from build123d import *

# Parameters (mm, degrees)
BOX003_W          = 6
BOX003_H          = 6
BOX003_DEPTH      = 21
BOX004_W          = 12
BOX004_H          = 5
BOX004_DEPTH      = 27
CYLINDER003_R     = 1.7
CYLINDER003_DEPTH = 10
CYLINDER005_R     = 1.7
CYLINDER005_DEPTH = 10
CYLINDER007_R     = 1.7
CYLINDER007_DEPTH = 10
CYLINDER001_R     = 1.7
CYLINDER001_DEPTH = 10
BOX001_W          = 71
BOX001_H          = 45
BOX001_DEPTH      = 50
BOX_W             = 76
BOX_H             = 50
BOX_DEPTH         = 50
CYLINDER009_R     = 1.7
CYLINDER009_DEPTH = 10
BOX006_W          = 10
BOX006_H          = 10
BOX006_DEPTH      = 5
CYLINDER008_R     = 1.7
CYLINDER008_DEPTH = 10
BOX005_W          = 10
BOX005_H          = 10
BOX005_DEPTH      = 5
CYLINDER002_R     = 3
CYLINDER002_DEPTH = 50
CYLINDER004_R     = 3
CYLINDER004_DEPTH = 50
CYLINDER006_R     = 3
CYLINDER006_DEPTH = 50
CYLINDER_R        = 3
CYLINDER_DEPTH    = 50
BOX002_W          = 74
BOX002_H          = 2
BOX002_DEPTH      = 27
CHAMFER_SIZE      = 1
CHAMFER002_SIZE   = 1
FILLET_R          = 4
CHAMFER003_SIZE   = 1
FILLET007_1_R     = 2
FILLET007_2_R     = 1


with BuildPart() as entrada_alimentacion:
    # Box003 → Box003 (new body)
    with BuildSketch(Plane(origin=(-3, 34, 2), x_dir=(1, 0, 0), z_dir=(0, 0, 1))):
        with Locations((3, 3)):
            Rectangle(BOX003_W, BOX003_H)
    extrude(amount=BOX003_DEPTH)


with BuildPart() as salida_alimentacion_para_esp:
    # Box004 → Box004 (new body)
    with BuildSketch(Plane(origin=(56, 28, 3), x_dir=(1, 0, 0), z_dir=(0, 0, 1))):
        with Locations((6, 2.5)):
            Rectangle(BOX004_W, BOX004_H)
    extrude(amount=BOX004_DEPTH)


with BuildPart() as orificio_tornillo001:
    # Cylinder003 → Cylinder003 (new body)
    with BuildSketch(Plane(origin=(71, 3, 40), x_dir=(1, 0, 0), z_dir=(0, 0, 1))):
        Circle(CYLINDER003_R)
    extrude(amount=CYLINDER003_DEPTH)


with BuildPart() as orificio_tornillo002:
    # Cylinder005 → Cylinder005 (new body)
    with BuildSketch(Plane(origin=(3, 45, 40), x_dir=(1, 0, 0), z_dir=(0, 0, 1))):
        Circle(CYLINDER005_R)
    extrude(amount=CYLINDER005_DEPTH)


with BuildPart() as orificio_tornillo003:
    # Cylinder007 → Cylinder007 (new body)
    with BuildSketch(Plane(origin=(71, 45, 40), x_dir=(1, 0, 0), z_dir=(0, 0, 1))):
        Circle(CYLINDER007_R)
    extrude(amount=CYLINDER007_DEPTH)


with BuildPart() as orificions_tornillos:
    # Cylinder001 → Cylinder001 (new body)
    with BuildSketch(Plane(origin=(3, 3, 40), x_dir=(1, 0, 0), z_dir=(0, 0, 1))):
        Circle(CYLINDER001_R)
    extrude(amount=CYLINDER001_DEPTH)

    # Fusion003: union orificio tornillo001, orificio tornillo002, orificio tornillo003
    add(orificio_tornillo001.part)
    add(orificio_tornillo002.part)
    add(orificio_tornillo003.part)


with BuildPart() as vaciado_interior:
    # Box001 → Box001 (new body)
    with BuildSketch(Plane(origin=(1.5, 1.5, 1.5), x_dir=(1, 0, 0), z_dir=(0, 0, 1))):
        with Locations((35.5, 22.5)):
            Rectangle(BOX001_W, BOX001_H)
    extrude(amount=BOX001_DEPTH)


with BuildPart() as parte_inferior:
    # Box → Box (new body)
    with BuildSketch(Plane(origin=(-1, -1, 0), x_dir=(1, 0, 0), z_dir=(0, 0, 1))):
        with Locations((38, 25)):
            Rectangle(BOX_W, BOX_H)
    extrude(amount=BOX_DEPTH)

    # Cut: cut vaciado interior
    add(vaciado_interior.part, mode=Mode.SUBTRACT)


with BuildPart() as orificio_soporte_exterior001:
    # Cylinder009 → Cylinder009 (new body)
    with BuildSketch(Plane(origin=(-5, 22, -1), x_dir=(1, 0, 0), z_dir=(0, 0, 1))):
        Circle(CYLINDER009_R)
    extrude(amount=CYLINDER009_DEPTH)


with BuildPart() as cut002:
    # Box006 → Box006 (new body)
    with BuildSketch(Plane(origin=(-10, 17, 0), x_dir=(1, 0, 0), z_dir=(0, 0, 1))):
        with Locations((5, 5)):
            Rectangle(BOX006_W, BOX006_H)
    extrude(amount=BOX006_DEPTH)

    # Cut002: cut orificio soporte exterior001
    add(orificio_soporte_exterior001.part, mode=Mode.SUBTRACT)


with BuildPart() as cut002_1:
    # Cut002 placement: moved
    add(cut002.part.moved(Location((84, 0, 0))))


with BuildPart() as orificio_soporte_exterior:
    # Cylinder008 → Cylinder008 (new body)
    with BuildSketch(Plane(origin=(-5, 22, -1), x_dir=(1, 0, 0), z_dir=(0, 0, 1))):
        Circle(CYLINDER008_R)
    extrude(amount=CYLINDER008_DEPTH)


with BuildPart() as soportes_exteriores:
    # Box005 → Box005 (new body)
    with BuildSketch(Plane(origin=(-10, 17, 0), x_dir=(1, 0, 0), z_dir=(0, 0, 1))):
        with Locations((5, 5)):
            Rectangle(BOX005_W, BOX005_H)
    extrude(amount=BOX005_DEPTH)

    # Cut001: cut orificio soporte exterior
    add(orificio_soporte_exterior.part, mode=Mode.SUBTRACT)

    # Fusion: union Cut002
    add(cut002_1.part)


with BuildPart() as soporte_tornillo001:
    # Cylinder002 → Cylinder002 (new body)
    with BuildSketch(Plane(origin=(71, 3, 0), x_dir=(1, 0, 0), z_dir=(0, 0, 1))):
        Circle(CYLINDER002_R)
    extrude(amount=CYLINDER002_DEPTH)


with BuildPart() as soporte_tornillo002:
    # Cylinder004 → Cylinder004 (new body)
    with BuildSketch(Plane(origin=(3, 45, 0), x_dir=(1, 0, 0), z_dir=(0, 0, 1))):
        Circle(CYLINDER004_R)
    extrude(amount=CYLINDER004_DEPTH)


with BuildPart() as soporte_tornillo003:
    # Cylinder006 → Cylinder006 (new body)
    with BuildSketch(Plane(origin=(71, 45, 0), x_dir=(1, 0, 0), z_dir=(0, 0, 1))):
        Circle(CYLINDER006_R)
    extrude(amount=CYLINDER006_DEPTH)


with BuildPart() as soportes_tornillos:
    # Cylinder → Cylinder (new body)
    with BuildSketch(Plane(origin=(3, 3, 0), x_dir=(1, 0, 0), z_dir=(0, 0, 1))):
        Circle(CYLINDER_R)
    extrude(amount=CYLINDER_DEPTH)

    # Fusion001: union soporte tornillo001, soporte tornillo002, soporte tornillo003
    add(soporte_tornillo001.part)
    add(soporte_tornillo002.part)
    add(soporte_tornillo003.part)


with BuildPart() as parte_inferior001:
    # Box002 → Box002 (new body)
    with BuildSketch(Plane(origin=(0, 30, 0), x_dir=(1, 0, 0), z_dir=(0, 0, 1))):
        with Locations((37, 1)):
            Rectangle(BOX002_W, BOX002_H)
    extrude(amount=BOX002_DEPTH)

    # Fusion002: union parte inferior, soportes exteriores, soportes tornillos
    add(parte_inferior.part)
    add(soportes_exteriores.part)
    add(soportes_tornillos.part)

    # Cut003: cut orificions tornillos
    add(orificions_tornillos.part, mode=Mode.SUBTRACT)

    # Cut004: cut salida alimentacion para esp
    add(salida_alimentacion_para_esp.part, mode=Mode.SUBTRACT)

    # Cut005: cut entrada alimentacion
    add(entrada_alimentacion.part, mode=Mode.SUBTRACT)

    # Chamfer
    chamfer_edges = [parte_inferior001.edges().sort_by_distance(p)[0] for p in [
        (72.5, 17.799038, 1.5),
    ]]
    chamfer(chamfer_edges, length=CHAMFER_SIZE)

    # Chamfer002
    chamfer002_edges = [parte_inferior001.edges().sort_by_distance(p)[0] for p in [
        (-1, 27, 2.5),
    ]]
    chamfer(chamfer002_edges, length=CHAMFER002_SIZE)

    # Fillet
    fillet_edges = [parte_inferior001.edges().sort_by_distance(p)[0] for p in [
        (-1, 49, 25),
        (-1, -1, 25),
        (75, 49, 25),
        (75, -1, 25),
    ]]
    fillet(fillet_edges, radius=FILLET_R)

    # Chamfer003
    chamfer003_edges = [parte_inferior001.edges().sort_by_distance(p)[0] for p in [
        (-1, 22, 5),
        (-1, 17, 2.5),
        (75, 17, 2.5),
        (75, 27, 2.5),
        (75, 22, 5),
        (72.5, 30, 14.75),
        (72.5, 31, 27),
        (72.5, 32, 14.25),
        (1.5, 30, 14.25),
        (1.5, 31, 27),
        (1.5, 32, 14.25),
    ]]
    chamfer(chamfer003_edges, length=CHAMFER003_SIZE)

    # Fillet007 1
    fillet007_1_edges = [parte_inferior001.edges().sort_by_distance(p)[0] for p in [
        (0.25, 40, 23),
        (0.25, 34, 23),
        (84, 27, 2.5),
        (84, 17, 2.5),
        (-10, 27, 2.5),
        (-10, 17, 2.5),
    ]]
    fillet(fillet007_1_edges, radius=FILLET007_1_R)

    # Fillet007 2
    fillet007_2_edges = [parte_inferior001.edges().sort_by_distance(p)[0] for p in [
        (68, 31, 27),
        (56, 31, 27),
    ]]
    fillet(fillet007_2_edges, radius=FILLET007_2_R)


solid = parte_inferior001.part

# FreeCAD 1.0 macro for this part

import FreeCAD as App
import Part
import Sketcher
from FreeCAD import Vector
Q = App.Units.Quantity


def edges_at(feature, points):
    """Names of the edges that pass closest to the given points."""
    edges = feature.Shape.Edges
    near = lambda p: min(range(len(edges)), key=lambda i: edges[i].distToShape(Part.Vertex(*p))[0])
    return sorted({f"Edge{near(p) + 1}" for p in points})

doc = App.newDocument("Part")
params = doc.addObject("Spreadsheet::Sheet", "Params")
for row, (alias, value) in enumerate([
    ("sketch1_width", "6 mm"),
    ("pad1_length", "21 mm"),
    ("sketch2_width", "12 mm"),
    ("sketch2_height", "5 mm"),
    ("pad2_length", "27 mm"),
    ("sketch3_diameter", "3.4 mm"),
    ("pad3_length", "10 mm"),
    ("sketch4_diameter", "3.4 mm"),
    ("pad4_length", "10 mm"),
    ("sketch5_diameter", "3.4 mm"),
    ("pad5_length", "10 mm"),
    ("sketch6_diameter", "3.4 mm"),
    ("pad6_length", "10 mm"),
    ("sketch7_width", "71 mm"),
    ("sketch7_height", "45 mm"),
    ("pad7_length", "50 mm"),
    ("sketch8_width", "76 mm"),
    ("sketch8_height", "50 mm"),
    ("pad8_length", "50 mm"),
    ("sketch9_diameter", "3.4 mm"),
    ("pad9_length", "10 mm"),
    ("sketch10_width", "10 mm"),
    ("pad10_length", "5 mm"),
    ("sketch11_diameter", "3.4 mm"),
    ("pad11_length", "10 mm"),
    ("sketch12_width", "10 mm"),
    ("pad12_length", "5 mm"),
    ("sketch13_diameter", "6 mm"),
    ("pad13_length", "50 mm"),
    ("sketch14_diameter", "6 mm"),
    ("pad14_length", "50 mm"),
    ("sketch15_diameter", "6 mm"),
    ("pad15_length", "50 mm"),
    ("sketch16_diameter", "6 mm"),
    ("pad16_length", "50 mm"),
    ("sketch17_width", "74 mm"),
    ("sketch17_height", "2 mm"),
    ("pad17_length", "27 mm"),
    ("chamfer_size", "1 mm"),
    ("chamfer2_size", "1 mm"),
    ("fillet_radius", "4 mm"),
    ("chamfer3_size", "1 mm"),
    ("fillet2_radius", "2 mm"),
    ("fillet3_radius", "1 mm"),
], start=1):
    params.set(f"A{row}", alias)
    params.set(f"B{row}", "=" + value)
    params.setAlias(f"B{row}", alias)

body = doc.addObject("PartDesign::Body", "Body")

# Sketch on XY plane
sketch1 = body.newObject("Sketcher::SketchObject", "Sketch")
sketch1.AttachmentSupport = (doc.getObject("XY_Plane"), [""])
sketch1.MapMode = "FlatFace"
sketch1.AttachmentOffset = App.Placement(Vector(0, 0, 2), App.Rotation())
sketch1.addGeometry(Part.LineSegment(Vector(-3, 40, 0), Vector(-3, 34, 0)), False)
sketch1.addGeometry(Part.LineSegment(Vector(-3, 34, 0), Vector(3, 34, 0)), False)
sketch1.addGeometry(Part.LineSegment(Vector(3, 34, 0), Vector(3, 40, 0)), False)
sketch1.addGeometry(Part.LineSegment(Vector(3, 40, 0), Vector(-3, 40, 0)), False)
sketch1.addConstraint(Sketcher.Constraint("Coincident", 0, 2, 1, 1))
sketch1.addConstraint(Sketcher.Constraint("Coincident", 1, 2, 2, 1))
sketch1.addConstraint(Sketcher.Constraint("Coincident", 2, 2, 3, 1))
sketch1.addConstraint(Sketcher.Constraint("Coincident", 3, 2, 0, 1))
sketch1.addConstraint(Sketcher.Constraint("Vertical", 0))
sketch1.addConstraint(Sketcher.Constraint("Horizontal", 1))
sketch1.addConstraint(Sketcher.Constraint("Vertical", 2))
sketch1.addConstraint(Sketcher.Constraint("Horizontal", 3))
sketch1.addConstraint(Sketcher.Constraint("Equal", 3, 0))
sketch1.addConstraint(Sketcher.Constraint("DistanceX", 1, 1, 1, 2, Q("6 mm")))
sketch1.addConstraint(Sketcher.Constraint("DistanceX", 0, 2, -1, 1, Q("3 mm")))
sketch1.addConstraint(Sketcher.Constraint("DistanceY", -1, 1, 0, 2, Q("34 mm")))
sketch1.setExpression("Constraints[9]", "Params.sketch1_width")
pad1 = body.newObject("PartDesign::Pad", "Pad")
pad1.Profile = sketch1
pad1.setExpression("Length", "Params.pad1_length")
body2 = doc.addObject("PartDesign::Body", "Body001")

# Sketch on XY plane
sketch2 = body2.newObject("Sketcher::SketchObject", "Sketch001")
sketch2.AttachmentSupport = (doc.getObject("XY_Plane001"), [""])
sketch2.MapMode = "FlatFace"
sketch2.AttachmentOffset = App.Placement(Vector(0, 0, 3), App.Rotation())
sketch2.addGeometry(Part.LineSegment(Vector(56, 33, 0), Vector(56, 28, 0)), False)
sketch2.addGeometry(Part.LineSegment(Vector(56, 28, 0), Vector(68, 28, 0)), False)
sketch2.addGeometry(Part.LineSegment(Vector(68, 28, 0), Vector(68, 33, 0)), False)
sketch2.addGeometry(Part.LineSegment(Vector(68, 33, 0), Vector(56, 33, 0)), False)
sketch2.addConstraint(Sketcher.Constraint("Coincident", 0, 2, 1, 1))
sketch2.addConstraint(Sketcher.Constraint("Coincident", 1, 2, 2, 1))
sketch2.addConstraint(Sketcher.Constraint("Coincident", 2, 2, 3, 1))
sketch2.addConstraint(Sketcher.Constraint("Coincident", 3, 2, 0, 1))
sketch2.addConstraint(Sketcher.Constraint("Vertical", 0))
sketch2.addConstraint(Sketcher.Constraint("Horizontal", 1))
sketch2.addConstraint(Sketcher.Constraint("Vertical", 2))
sketch2.addConstraint(Sketcher.Constraint("Horizontal", 3))
sketch2.addConstraint(Sketcher.Constraint("DistanceX", 1, 1, 1, 2, Q("12 mm")))
sketch2.addConstraint(Sketcher.Constraint("DistanceY", 0, 2, 0, 1, Q("5 mm")))
sketch2.addConstraint(Sketcher.Constraint("DistanceX", -1, 1, 0, 2, Q("56 mm")))
sketch2.addConstraint(Sketcher.Constraint("DistanceY", -1, 1, 0, 2, Q("28 mm")))
sketch2.setExpression("Constraints[8]", "Params.sketch2_width")
sketch2.setExpression("Constraints[9]", "Params.sketch2_height")
pad2 = body2.newObject("PartDesign::Pad", "Pad001")
pad2.Profile = sketch2
pad2.setExpression("Length", "Params.pad2_length")
body3 = doc.addObject("PartDesign::Body", "Body002")

# Sketch on XY plane
sketch3 = body3.newObject("Sketcher::SketchObject", "Sketch002")
sketch3.AttachmentSupport = (doc.getObject("XY_Plane002"), [""])
sketch3.MapMode = "FlatFace"
sketch3.AttachmentOffset = App.Placement(Vector(0, 0, 40), App.Rotation())
sketch3.addGeometry(Part.Circle(Vector(71, 3, 0), Vector(0, 0, 1), 1.7), False)
sketch3.addConstraint(Sketcher.Constraint("Diameter", 0, Q("3.4 mm")))
sketch3.addConstraint(Sketcher.Constraint("DistanceX", -1, 1, 0, 3, Q("71 mm")))
sketch3.addConstraint(Sketcher.Constraint("DistanceY", -1, 1, 0, 3, Q("3 mm")))
sketch3.setExpression("Constraints[0]", "Params.sketch3_diameter")
pad3 = body3.newObject("PartDesign::Pad", "Pad002")
pad3.Profile = sketch3
pad3.setExpression("Length", "Params.pad3_length")
body4 = doc.addObject("PartDesign::Body", "Body003")

# Sketch on XY plane
sketch4 = body4.newObject("Sketcher::SketchObject", "Sketch003")
sketch4.AttachmentSupport = (doc.getObject("XY_Plane003"), [""])
sketch4.MapMode = "FlatFace"
sketch4.AttachmentOffset = App.Placement(Vector(0, 0, 40), App.Rotation())
sketch4.addGeometry(Part.Circle(Vector(3, 45, 0), Vector(0, 0, 1), 1.7), False)
sketch4.addConstraint(Sketcher.Constraint("Diameter", 0, Q("3.4 mm")))
sketch4.addConstraint(Sketcher.Constraint("DistanceX", -1, 1, 0, 3, Q("3 mm")))
sketch4.addConstraint(Sketcher.Constraint("DistanceY", -1, 1, 0, 3, Q("45 mm")))
sketch4.setExpression("Constraints[0]", "Params.sketch4_diameter")
pad4 = body4.newObject("PartDesign::Pad", "Pad003")
pad4.Profile = sketch4
pad4.setExpression("Length", "Params.pad4_length")
body5 = doc.addObject("PartDesign::Body", "Body004")

# Sketch on XY plane
sketch5 = body5.newObject("Sketcher::SketchObject", "Sketch004")
sketch5.AttachmentSupport = (doc.getObject("XY_Plane004"), [""])
sketch5.MapMode = "FlatFace"
sketch5.AttachmentOffset = App.Placement(Vector(0, 0, 40), App.Rotation())
sketch5.addGeometry(Part.Circle(Vector(71, 45, 0), Vector(0, 0, 1), 1.7), False)
sketch5.addConstraint(Sketcher.Constraint("Diameter", 0, Q("3.4 mm")))
sketch5.addConstraint(Sketcher.Constraint("DistanceX", -1, 1, 0, 3, Q("71 mm")))
sketch5.addConstraint(Sketcher.Constraint("DistanceY", -1, 1, 0, 3, Q("45 mm")))
sketch5.setExpression("Constraints[0]", "Params.sketch5_diameter")
pad5 = body5.newObject("PartDesign::Pad", "Pad004")
pad5.Profile = sketch5
pad5.setExpression("Length", "Params.pad5_length")
body6 = doc.addObject("PartDesign::Body", "Body005")
body6.AllowCompound = True

# Sketch on XY plane
sketch6 = body6.newObject("Sketcher::SketchObject", "Sketch005")
sketch6.AttachmentSupport = (doc.getObject("XY_Plane005"), [""])
sketch6.MapMode = "FlatFace"
sketch6.AttachmentOffset = App.Placement(Vector(0, 0, 40), App.Rotation())
sketch6.addGeometry(Part.Circle(Vector(3, 3, 0), Vector(0, 0, 1), 1.7), False)
sketch6.addConstraint(Sketcher.Constraint("Diameter", 0, Q("3.4 mm")))
sketch6.addConstraint(Sketcher.Constraint("DistanceX", -1, 1, 0, 3, Q("3 mm")))
sketch6.addConstraint(Sketcher.Constraint("DistanceY", -1, 1, 0, 3, Q("3 mm")))
sketch6.setExpression("Constraints[0]", "Params.sketch6_diameter")
pad6 = body6.newObject("PartDesign::Pad", "Pad005")
pad6.Profile = sketch6
pad6.setExpression("Length", "Params.pad6_length")
doc.recompute()

boolean = body6.newObject("PartDesign::Boolean", "Boolean")
boolean.Type = "Fuse"
boolean.addObjects([body3])
doc.recompute()

boolean2 = body6.newObject("PartDesign::Boolean", "Boolean001")
boolean2.Type = "Fuse"
boolean2.addObjects([body4])
doc.recompute()

boolean3 = body6.newObject("PartDesign::Boolean", "Boolean002")
boolean3.Type = "Fuse"
boolean3.addObjects([body5])
body7 = doc.addObject("PartDesign::Body", "Body006")

# Sketch on XY plane
sketch7 = body7.newObject("Sketcher::SketchObject", "Sketch006")
sketch7.AttachmentSupport = (doc.getObject("XY_Plane006"), [""])
sketch7.MapMode = "FlatFace"
sketch7.AttachmentOffset = App.Placement(Vector(0, 0, 1.5), App.Rotation())
sketch7.addGeometry(Part.LineSegment(Vector(2, 46, 0), Vector(2, 2, 0)), False)
sketch7.addGeometry(Part.LineSegment(Vector(2, 2, 0), Vector(72, 2, 0)), False)
sketch7.addGeometry(Part.LineSegment(Vector(72, 2, 0), Vector(72, 46, 0)), False)
sketch7.addGeometry(Part.LineSegment(Vector(72, 46, 0), Vector(2, 46, 0)), False)
sketch7.addConstraint(Sketcher.Constraint("Coincident", 0, 2, 1, 1))
sketch7.addConstraint(Sketcher.Constraint("Coincident", 1, 2, 2, 1))
sketch7.addConstraint(Sketcher.Constraint("Coincident", 2, 2, 3, 1))
sketch7.addConstraint(Sketcher.Constraint("Coincident", 3, 2, 0, 1))
sketch7.addConstraint(Sketcher.Constraint("Vertical", 0))
sketch7.addConstraint(Sketcher.Constraint("Horizontal", 1))
sketch7.addConstraint(Sketcher.Constraint("Vertical", 2))
sketch7.addConstraint(Sketcher.Constraint("Horizontal", 3))
sketch7.addConstraint(Sketcher.Constraint("DistanceX", 1, 1, 1, 2, Q("71 mm")))
sketch7.addConstraint(Sketcher.Constraint("DistanceY", 0, 2, 0, 1, Q("45 mm")))
sketch7.addConstraint(Sketcher.Constraint("DistanceX", -1, 1, 0, 2, Q("1.5 mm")))
sketch7.addConstraint(Sketcher.Constraint("DistanceY", -1, 1, 0, 2, Q("1.5 mm")))
sketch7.setExpression("Constraints[8]", "Params.sketch7_width")
sketch7.setExpression("Constraints[9]", "Params.sketch7_height")
pad7 = body7.newObject("PartDesign::Pad", "Pad006")
pad7.Profile = sketch7
pad7.setExpression("Length", "Params.pad7_length")
body8 = doc.addObject("PartDesign::Body", "Body007")

# Sketch on XY plane
sketch8 = body8.newObject("Sketcher::SketchObject", "Sketch007")
sketch8.AttachmentSupport = (doc.getObject("XY_Plane007"), [""])
sketch8.MapMode = "FlatFace"
sketch8.addGeometry(Part.LineSegment(Vector(-1, 49, 0), Vector(-1, -1, 0)), False)
sketch8.addGeometry(Part.LineSegment(Vector(-1, -1, 0), Vector(75, -1, 0)), False)
sketch8.addGeometry(Part.LineSegment(Vector(75, -1, 0), Vector(75, 49, 0)), False)
sketch8.addGeometry(Part.LineSegment(Vector(75, 49, 0), Vector(-1, 49, 0)), False)
sketch8.addConstraint(Sketcher.Constraint("Coincident", 0, 2, 1, 1))
sketch8.addConstraint(Sketcher.Constraint("Coincident", 1, 2, 2, 1))
sketch8.addConstraint(Sketcher.Constraint("Coincident", 2, 2, 3, 1))
sketch8.addConstraint(Sketcher.Constraint("Coincident", 3, 2, 0, 1))
sketch8.addConstraint(Sketcher.Constraint("Vertical", 0))
sketch8.addConstraint(Sketcher.Constraint("Horizontal", 1))
sketch8.addConstraint(Sketcher.Constraint("Vertical", 2))
sketch8.addConstraint(Sketcher.Constraint("Horizontal", 3))
sketch8.addConstraint(Sketcher.Constraint("DistanceX", 1, 1, 1, 2, Q("76 mm")))
sketch8.addConstraint(Sketcher.Constraint("DistanceY", 0, 2, 0, 1, Q("50 mm")))
sketch8.addConstraint(Sketcher.Constraint("DistanceX", 0, 2, -1, 1, Q("1 mm")))
sketch8.addConstraint(Sketcher.Constraint("DistanceY", 0, 2, -1, 1, Q("1 mm")))
sketch8.setExpression("Constraints[8]", "Params.sketch8_width")
sketch8.setExpression("Constraints[9]", "Params.sketch8_height")
pad8 = body8.newObject("PartDesign::Pad", "Pad007")
pad8.Profile = sketch8
pad8.setExpression("Length", "Params.pad8_length")
doc.recompute()

boolean4 = body8.newObject("PartDesign::Boolean", "Boolean003")
boolean4.Type = "Cut"
boolean4.addObjects([body7])
body9 = doc.addObject("PartDesign::Body", "Body008")

# Sketch on XY plane
sketch9 = body9.newObject("Sketcher::SketchObject", "Sketch008")
sketch9.AttachmentSupport = (doc.getObject("XY_Plane008"), [""])
sketch9.MapMode = "FlatFace"
sketch9.AttachmentOffset = App.Placement(Vector(0, 0, -1), App.Rotation())
sketch9.addGeometry(Part.Circle(Vector(-5, 22, 0), Vector(0, 0, 1), 1.7), False)
sketch9.addConstraint(Sketcher.Constraint("Diameter", 0, Q("3.4 mm")))
sketch9.addConstraint(Sketcher.Constraint("DistanceX", 0, 3, -1, 1, Q("5 mm")))
sketch9.addConstraint(Sketcher.Constraint("DistanceY", -1, 1, 0, 3, Q("22 mm")))
sketch9.setExpression("Constraints[0]", "Params.sketch9_diameter")
pad9 = body9.newObject("PartDesign::Pad", "Pad008")
pad9.Profile = sketch9
pad9.setExpression("Length", "Params.pad9_length")
body10 = doc.addObject("PartDesign::Body", "Body009")

# Sketch on XY plane
sketch10 = body10.newObject("Sketcher::SketchObject", "Sketch009")
sketch10.AttachmentSupport = (doc.getObject("XY_Plane009"), [""])
sketch10.MapMode = "FlatFace"
sketch10.addGeometry(Part.LineSegment(Vector(-10, 27, 0), Vector(-10, 17, 0)), False)
sketch10.addGeometry(Part.LineSegment(Vector(-10, 17, 0), Vector(0, 17, 0)), False)
sketch10.addGeometry(Part.LineSegment(Vector(0, 17, 0), Vector(0, 27, 0)), False)
sketch10.addGeometry(Part.LineSegment(Vector(0, 27, 0), Vector(-10, 27, 0)), False)
sketch10.addConstraint(Sketcher.Constraint("Coincident", 0, 2, 1, 1))
sketch10.addConstraint(Sketcher.Constraint("Coincident", 1, 2, 2, 1))
sketch10.addConstraint(Sketcher.Constraint("Coincident", 2, 2, 3, 1))
sketch10.addConstraint(Sketcher.Constraint("Coincident", 3, 2, 0, 1))
sketch10.addConstraint(Sketcher.Constraint("Vertical", 0))
sketch10.addConstraint(Sketcher.Constraint("Horizontal", 1))
sketch10.addConstraint(Sketcher.Constraint("Vertical", 2))
sketch10.addConstraint(Sketcher.Constraint("Horizontal", 3))
sketch10.addConstraint(Sketcher.Constraint("PointOnObject", 1, 2, -2))
sketch10.addConstraint(Sketcher.Constraint("Equal", 3, 0))
sketch10.addConstraint(Sketcher.Constraint("DistanceX", 1, 1, 1, 2, Q("10 mm")))
sketch10.addConstraint(Sketcher.Constraint("DistanceY", -1, 1, 0, 2, Q("17 mm")))
sketch10.setExpression("Constraints[10]", "Params.sketch10_width")
pad10 = body10.newObject("PartDesign::Pad", "Pad009")
pad10.Profile = sketch10
pad10.setExpression("Length", "Params.pad10_length")
doc.recompute()

boolean5 = body10.newObject("PartDesign::Boolean", "Boolean004")
boolean5.Type = "Cut"
boolean5.addObjects([body9])
body11 = doc.addObject("PartDesign::Body", "Body010")
doc.recompute()

body10.Placement = App.Placement(Vector(84, 0, 0), App.Rotation(Vector(0, 0, 1), 0))
boolean6 = body11.newObject("PartDesign::Boolean", "Boolean005")
boolean6.Type = "Fuse"
boolean6.addObjects([body10])
body12 = doc.addObject("PartDesign::Body", "Body011")

# Sketch on XY plane
sketch11 = body12.newObject("Sketcher::SketchObject", "Sketch010")
sketch11.AttachmentSupport = (doc.getObject("XY_Plane011"), [""])
sketch11.MapMode = "FlatFace"
sketch11.AttachmentOffset = App.Placement(Vector(0, 0, -1), App.Rotation())
sketch11.addGeometry(Part.Circle(Vector(-5, 22, 0), Vector(0, 0, 1), 1.7), False)
sketch11.addConstraint(Sketcher.Constraint("Diameter", 0, Q("3.4 mm")))
sketch11.addConstraint(Sketcher.Constraint("DistanceX", 0, 3, -1, 1, Q("5 mm")))
sketch11.addConstraint(Sketcher.Constraint("DistanceY", -1, 1, 0, 3, Q("22 mm")))
sketch11.setExpression("Constraints[0]", "Params.sketch11_diameter")
pad11 = body12.newObject("PartDesign::Pad", "Pad010")
pad11.Profile = sketch11
pad11.setExpression("Length", "Params.pad11_length")
body13 = doc.addObject("PartDesign::Body", "Body012")
body13.AllowCompound = True

# Sketch on XY plane
sketch12 = body13.newObject("Sketcher::SketchObject", "Sketch011")
sketch12.AttachmentSupport = (doc.getObject("XY_Plane012"), [""])
sketch12.MapMode = "FlatFace"
sketch12.addGeometry(Part.LineSegment(Vector(-10, 27, 0), Vector(-10, 17, 0)), False)
sketch12.addGeometry(Part.LineSegment(Vector(-10, 17, 0), Vector(0, 17, 0)), False)
sketch12.addGeometry(Part.LineSegment(Vector(0, 17, 0), Vector(0, 27, 0)), False)
sketch12.addGeometry(Part.LineSegment(Vector(0, 27, 0), Vector(-10, 27, 0)), False)
sketch12.addConstraint(Sketcher.Constraint("Coincident", 0, 2, 1, 1))
sketch12.addConstraint(Sketcher.Constraint("Coincident", 1, 2, 2, 1))
sketch12.addConstraint(Sketcher.Constraint("Coincident", 2, 2, 3, 1))
sketch12.addConstraint(Sketcher.Constraint("Coincident", 3, 2, 0, 1))
sketch12.addConstraint(Sketcher.Constraint("Vertical", 0))
sketch12.addConstraint(Sketcher.Constraint("Horizontal", 1))
sketch12.addConstraint(Sketcher.Constraint("Vertical", 2))
sketch12.addConstraint(Sketcher.Constraint("Horizontal", 3))
sketch12.addConstraint(Sketcher.Constraint("PointOnObject", 1, 2, -2))
sketch12.addConstraint(Sketcher.Constraint("Equal", 3, 0))
sketch12.addConstraint(Sketcher.Constraint("DistanceX", 1, 1, 1, 2, Q("10 mm")))
sketch12.addConstraint(Sketcher.Constraint("DistanceY", -1, 1, 0, 2, Q("17 mm")))
sketch12.setExpression("Constraints[10]", "Params.sketch12_width")
pad12 = body13.newObject("PartDesign::Pad", "Pad011")
pad12.Profile = sketch12
pad12.setExpression("Length", "Params.pad12_length")
doc.recompute()

boolean7 = body13.newObject("PartDesign::Boolean", "Boolean006")
boolean7.Type = "Cut"
boolean7.addObjects([body12])
doc.recompute()

boolean8 = body13.newObject("PartDesign::Boolean", "Boolean007")
boolean8.Type = "Fuse"
boolean8.addObjects([body11])
body14 = doc.addObject("PartDesign::Body", "Body013")

# Sketch on XY plane
sketch13 = body14.newObject("Sketcher::SketchObject", "Sketch012")
sketch13.AttachmentSupport = (doc.getObject("XY_Plane013"), [""])
sketch13.MapMode = "FlatFace"
sketch13.addGeometry(Part.Circle(Vector(71, 3, 0), Vector(0, 0, 1), 3), False)
sketch13.addConstraint(Sketcher.Constraint("Diameter", 0, Q("6 mm")))
sketch13.addConstraint(Sketcher.Constraint("DistanceX", -1, 1, 0, 3, Q("71 mm")))
sketch13.addConstraint(Sketcher.Constraint("DistanceY", -1, 1, 0, 3, Q("3 mm")))
sketch13.setExpression("Constraints[0]", "Params.sketch13_diameter")
pad13 = body14.newObject("PartDesign::Pad", "Pad012")
pad13.Profile = sketch13
pad13.setExpression("Length", "Params.pad13_length")
body15 = doc.addObject("PartDesign::Body", "Body014")

# Sketch on XY plane
sketch14 = body15.newObject("Sketcher::SketchObject", "Sketch013")
sketch14.AttachmentSupport = (doc.getObject("XY_Plane014"), [""])
sketch14.MapMode = "FlatFace"
sketch14.addGeometry(Part.Circle(Vector(3, 45, 0), Vector(0, 0, 1), 3), False)
sketch14.addConstraint(Sketcher.Constraint("Diameter", 0, Q("6 mm")))
sketch14.addConstraint(Sketcher.Constraint("DistanceX", -1, 1, 0, 3, Q("3 mm")))
sketch14.addConstraint(Sketcher.Constraint("DistanceY", -1, 1, 0, 3, Q("45 mm")))
sketch14.setExpression("Constraints[0]", "Params.sketch14_diameter")
pad14 = body15.newObject("PartDesign::Pad", "Pad013")
pad14.Profile = sketch14
pad14.setExpression("Length", "Params.pad14_length")
body16 = doc.addObject("PartDesign::Body", "Body015")

# Sketch on XY plane
sketch15 = body16.newObject("Sketcher::SketchObject", "Sketch014")
sketch15.AttachmentSupport = (doc.getObject("XY_Plane015"), [""])
sketch15.MapMode = "FlatFace"
sketch15.addGeometry(Part.Circle(Vector(71, 45, 0), Vector(0, 0, 1), 3), False)
sketch15.addConstraint(Sketcher.Constraint("Diameter", 0, Q("6 mm")))
sketch15.addConstraint(Sketcher.Constraint("DistanceX", -1, 1, 0, 3, Q("71 mm")))
sketch15.addConstraint(Sketcher.Constraint("DistanceY", -1, 1, 0, 3, Q("45 mm")))
sketch15.setExpression("Constraints[0]", "Params.sketch15_diameter")
pad15 = body16.newObject("PartDesign::Pad", "Pad014")
pad15.Profile = sketch15
pad15.setExpression("Length", "Params.pad15_length")
body17 = doc.addObject("PartDesign::Body", "Body016")
body17.AllowCompound = True

# Sketch on XY plane
sketch16 = body17.newObject("Sketcher::SketchObject", "Sketch015")
sketch16.AttachmentSupport = (doc.getObject("XY_Plane016"), [""])
sketch16.MapMode = "FlatFace"
sketch16.addGeometry(Part.Circle(Vector(3, 3, 0), Vector(0, 0, 1), 3), False)
sketch16.addConstraint(Sketcher.Constraint("Diameter", 0, Q("6 mm")))
sketch16.addConstraint(Sketcher.Constraint("DistanceX", -1, 1, 0, 3, Q("3 mm")))
sketch16.addConstraint(Sketcher.Constraint("DistanceY", -1, 1, 0, 3, Q("3 mm")))
sketch16.setExpression("Constraints[0]", "Params.sketch16_diameter")
pad16 = body17.newObject("PartDesign::Pad", "Pad015")
pad16.Profile = sketch16
pad16.setExpression("Length", "Params.pad16_length")
doc.recompute()

boolean9 = body17.newObject("PartDesign::Boolean", "Boolean008")
boolean9.Type = "Fuse"
boolean9.addObjects([body14])
doc.recompute()

boolean10 = body17.newObject("PartDesign::Boolean", "Boolean009")
boolean10.Type = "Fuse"
boolean10.addObjects([body15])
doc.recompute()

boolean11 = body17.newObject("PartDesign::Boolean", "Boolean010")
boolean11.Type = "Fuse"
boolean11.addObjects([body16])
body18 = doc.addObject("PartDesign::Body", "Body017")

# Sketch on XY plane
sketch17 = body18.newObject("Sketcher::SketchObject", "Sketch016")
sketch17.AttachmentSupport = (doc.getObject("XY_Plane017"), [""])
sketch17.MapMode = "FlatFace"
sketch17.addGeometry(Part.LineSegment(Vector(0, 32, 0), Vector(0, 30, 0)), False)
sketch17.addGeometry(Part.LineSegment(Vector(0, 30, 0), Vector(74, 30, 0)), False)
sketch17.addGeometry(Part.LineSegment(Vector(74, 30, 0), Vector(74, 32, 0)), False)
sketch17.addGeometry(Part.LineSegment(Vector(74, 32, 0), Vector(0, 32, 0)), False)
sketch17.addConstraint(Sketcher.Constraint("Coincident", 0, 2, 1, 1))
sketch17.addConstraint(Sketcher.Constraint("Coincident", 1, 2, 2, 1))
sketch17.addConstraint(Sketcher.Constraint("Coincident", 2, 2, 3, 1))
sketch17.addConstraint(Sketcher.Constraint("Coincident", 3, 2, 0, 1))
sketch17.addConstraint(Sketcher.Constraint("Vertical", 0))
sketch17.addConstraint(Sketcher.Constraint("Horizontal", 1))
sketch17.addConstraint(Sketcher.Constraint("Vertical", 2))
sketch17.addConstraint(Sketcher.Constraint("Horizontal", 3))
sketch17.addConstraint(Sketcher.Constraint("PointOnObject", 0, 2, -2))
sketch17.addConstraint(Sketcher.Constraint("DistanceX", 1, 1, 1, 2, Q("74 mm")))
sketch17.addConstraint(Sketcher.Constraint("DistanceY", 0, 2, 0, 1, Q("2 mm")))
sketch17.addConstraint(Sketcher.Constraint("DistanceY", -1, 1, 0, 2, Q("30 mm")))
sketch17.setExpression("Constraints[9]", "Params.sketch17_width")
sketch17.setExpression("Constraints[10]", "Params.sketch17_height")
pad17 = body18.newObject("PartDesign::Pad", "Pad016")
pad17.Profile = sketch17
pad17.setExpression("Length", "Params.pad17_length")
doc.recompute()

boolean12 = body18.newObject("PartDesign::Boolean", "Boolean011")
boolean12.Type = "Fuse"
boolean12.addObjects([body8])
doc.recompute()

boolean13 = body18.newObject("PartDesign::Boolean", "Boolean012")
boolean13.Type = "Fuse"
boolean13.addObjects([body13])
doc.recompute()

boolean14 = body18.newObject("PartDesign::Boolean", "Boolean013")
boolean14.Type = "Fuse"
boolean14.addObjects([body17])
doc.recompute()

boolean15 = body18.newObject("PartDesign::Boolean", "Boolean014")
boolean15.Type = "Cut"
boolean15.addObjects([body6])
doc.recompute()

boolean16 = body18.newObject("PartDesign::Boolean", "Boolean015")
boolean16.Type = "Cut"
boolean16.addObjects([body2])
doc.recompute()

boolean17 = body18.newObject("PartDesign::Boolean", "Boolean016")
boolean17.Type = "Cut"
boolean17.addObjects([body])
doc.recompute()

chamfer = body18.newObject("PartDesign::Chamfer", "Chamfer")
chamfer.Base = (boolean17, edges_at(boolean17, [(72.5, 17.799, 1.5)]))
chamfer.setExpression("Size", "Params.chamfer_size")
doc.recompute()

chamfer2 = body18.newObject("PartDesign::Chamfer", "Chamfer001")
chamfer2.Base = (chamfer, edges_at(chamfer, [(-1, 27, 2.5)]))
chamfer2.setExpression("Size", "Params.chamfer2_size")
doc.recompute()

fillet = body18.newObject("PartDesign::Fillet", "Fillet")
fillet.Base = (chamfer2, edges_at(chamfer2, [
    (-1, 49, 25),
    (-1, -1, 25),
    (75, 49, 25),
    (75, -1, 25),
]))
fillet.setExpression("Radius", "Params.fillet_radius")
doc.recompute()

chamfer3 = body18.newObject("PartDesign::Chamfer", "Chamfer002")
chamfer3.Base = (fillet, edges_at(fillet, [
    (-1, 22.5, 5),
    (-1, 17, 2.5),
    (75, 17, 2.5),
    (75, 27, 2.5),
    (75, 22, 5),
    (72.5, 30, 14.75),
    (72.5, 31, 27),
    (72.5, 32, 14.25),
    (1.5, 30, 14.25),
    (1.5, 31, 27),
    (1.5, 32, 14.25),
]))
chamfer3.setExpression("Size", "Params.chamfer3_size")
doc.recompute()

fillet2 = body18.newObject("PartDesign::Fillet", "Fillet001")
fillet2.Base = (chamfer3, edges_at(chamfer3, [
    (0.25, 40, 23),
    (0.25, 34, 23),
    (84, 27, 2.5),
    (84, 17, 2.5),
    (-10, 27, 2.5),
    (-10, 17, 2.5),
]))
fillet2.setExpression("Radius", "Params.fillet2_radius")
doc.recompute()

fillet3 = body18.newObject("PartDesign::Fillet", "Fillet002")
fillet3.Base = (fillet2, edges_at(fillet2, [(68, 31, 27), (56, 31, 27)]))
fillet3.setExpression("Radius", "Params.fillet3_radius")

doc.recompute()
